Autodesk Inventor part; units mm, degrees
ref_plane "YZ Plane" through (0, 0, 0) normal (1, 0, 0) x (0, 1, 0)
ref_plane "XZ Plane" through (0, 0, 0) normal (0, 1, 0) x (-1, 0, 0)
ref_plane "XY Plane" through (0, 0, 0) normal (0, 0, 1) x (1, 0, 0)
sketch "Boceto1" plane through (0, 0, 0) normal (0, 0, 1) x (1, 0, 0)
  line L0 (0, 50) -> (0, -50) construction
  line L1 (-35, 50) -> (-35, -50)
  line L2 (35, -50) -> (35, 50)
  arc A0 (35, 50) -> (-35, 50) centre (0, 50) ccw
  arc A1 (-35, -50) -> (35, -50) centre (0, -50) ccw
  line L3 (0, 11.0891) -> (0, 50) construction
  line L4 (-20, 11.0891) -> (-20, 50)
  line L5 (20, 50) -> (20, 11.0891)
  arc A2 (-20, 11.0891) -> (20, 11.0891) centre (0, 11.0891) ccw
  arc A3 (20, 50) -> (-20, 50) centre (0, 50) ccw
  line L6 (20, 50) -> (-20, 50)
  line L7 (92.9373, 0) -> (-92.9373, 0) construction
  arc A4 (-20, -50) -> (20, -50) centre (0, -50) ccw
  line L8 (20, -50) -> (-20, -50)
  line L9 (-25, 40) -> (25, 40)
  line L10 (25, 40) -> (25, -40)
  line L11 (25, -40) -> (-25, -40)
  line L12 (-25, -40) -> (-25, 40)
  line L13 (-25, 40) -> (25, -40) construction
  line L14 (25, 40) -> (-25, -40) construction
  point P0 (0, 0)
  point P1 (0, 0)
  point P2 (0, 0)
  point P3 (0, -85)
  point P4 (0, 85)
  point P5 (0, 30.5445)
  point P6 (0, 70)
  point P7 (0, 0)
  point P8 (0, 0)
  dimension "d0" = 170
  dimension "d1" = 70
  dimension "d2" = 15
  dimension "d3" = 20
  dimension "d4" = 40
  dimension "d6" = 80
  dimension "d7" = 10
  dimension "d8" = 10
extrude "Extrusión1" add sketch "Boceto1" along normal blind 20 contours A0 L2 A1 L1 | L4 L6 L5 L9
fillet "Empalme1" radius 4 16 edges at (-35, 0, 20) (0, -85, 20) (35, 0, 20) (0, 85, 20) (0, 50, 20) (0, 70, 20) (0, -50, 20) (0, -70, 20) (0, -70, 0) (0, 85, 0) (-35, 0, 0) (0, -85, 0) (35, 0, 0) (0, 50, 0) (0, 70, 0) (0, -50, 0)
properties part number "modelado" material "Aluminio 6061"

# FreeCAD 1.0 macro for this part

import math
import FreeCAD as App
import Part
import Sketcher

V = App.Vector
Q = App.Units.Quantity


def edges_at(feature, points):
    """Names of the edges that pass closest to the given points."""
    edges = feature.Shape.Edges
    near = lambda p: min(range(len(edges)), key=lambda i: edges[i].distToShape(Part.Vertex(*p))[0])
    return sorted({f"Edge{near(p) + 1}" for p in points})


def add_polygon(sketch, points):
    """Adds a closed chain of lines whose ends are joined by coincident constraints."""
    first, n = sketch.GeometryCount, len(points)
    for a, b in zip(points, points[1:] + points[:1]):
        sketch.addGeometry(Part.LineSegment(App.Vector(*a, 0), App.Vector(*b, 0)), False)
    for i in range(n):
        sketch.addConstraint(Sketcher.Constraint("Coincident", first + i, 2, first + (i + 1) % n, 1))

doc = App.newDocument("Part")
body = doc.addObject("PartDesign::Body", "Body")

sketch1 = body.newObject("Sketcher::SketchObject", "Sketch")
sketch1.AttachmentSupport = (doc.getObject("XY_Plane"), [""])
sketch1.MapMode = "FlatFace"
sketch1.addGeometry(Part.ArcOfCircle(Part.Circle(V(0, 50, 0), V(0, 0, 1), 35), math.radians(0), math.radians(180)), False)
sketch1.addGeometry(Part.LineSegment(V(-35, 50, 0), V(-35, -50, 0)), False)
sketch1.addGeometry(Part.ArcOfCircle(Part.Circle(V(0, -50, 0), V(0, 0, 1), 35), math.radians(180), math.radians(360)), False)
sketch1.addGeometry(Part.LineSegment(V(35, -50, 0), V(35, 50, 0)), False)
sketch1.addGeometry(Part.ArcOfCircle(Part.Circle(V(0, -50, 0), V(0, 0, 1), 20), math.radians(180), math.radians(360)), False)
sketch1.addGeometry(Part.LineSegment(V(-20, -50, 0), V(20, -50, 0)), False)
add_polygon(sketch1, [(-25, 40), (25, 40), (25, -40), (-25, -40)])
sketch1.addGeometry(Part.ArcOfCircle(Part.Circle(V(0, 50, 0), V(0, 0, 1), 20), math.radians(0), math.radians(180)), False)
sketch1.addGeometry(Part.LineSegment(V(20, 50, 0), V(-20, 50, 0)), False)
sketch1.addConstraint([
    Sketcher.Constraint("Tangent", 0, 2, 1, 1),
    Sketcher.Constraint("Tangent", 1, 2, 2, 1),
    Sketcher.Constraint("Tangent", 2, 2, 3, 1),
    Sketcher.Constraint("Tangent", 3, 2, 0, 1),
    Sketcher.Constraint("Coincident", 4, 1, 5, 1),
    Sketcher.Constraint("Coincident", 5, 2, 4, 2),
    Sketcher.Constraint("Coincident", 10, 1, 11, 1),
    Sketcher.Constraint("Coincident", 11, 2, 10, 2),
    Sketcher.Constraint("Vertical", 1),
    Sketcher.Constraint("Vertical", 3),
    Sketcher.Constraint("Horizontal", 5),
    Sketcher.Constraint("Horizontal", 6),
    Sketcher.Constraint("Vertical", 7),
    Sketcher.Constraint("Horizontal", 8),
    Sketcher.Constraint("Vertical", 9),
    Sketcher.Constraint("Horizontal", 11),
    Sketcher.Constraint("Coincident", 4, 3, 2, 3),
    Sketcher.Constraint("Coincident", 10, 3, 0, 3),
    Sketcher.Constraint("Equal", 4, 10),
    Sketcher.Constraint("Symmetric", 0, 3, 2, 3, -1, 1),
    Sketcher.Constraint("Symmetric", 6, 2, 8, 2, -1, 1),
    Sketcher.Constraint("Horizontal", 2, 2, 4, 1),
    Sketcher.Constraint("Horizontal", 3, 2, 10, 1),
    Sketcher.Constraint("Radius", 0, Q("35 mm")),
    Sketcher.Constraint("Radius", 4, Q("20 mm")),
    Sketcher.Constraint("DistanceY", 7, 2, 7, 1, Q("80 mm")),
    Sketcher.Constraint("DistanceX", 6, 2, 3, 2, Q("10 mm")),
    Sketcher.Constraint("DistanceY", 6, 2, 3, 2, Q("10 mm")),
])
pad1 = body.newObject("PartDesign::Pad", "Pad")
pad1.Profile = sketch1
pad1.Length = 20
doc.recompute()

fillet = body.newObject("PartDesign::Fillet", "Fillet")
fillet.Base = (pad1, edges_at(pad1, [
    (-35, 0, 20),
    (0, -85, 20),
    (35, 0, 20),
    (0, 85, 20),
    (0, 50, 20),
    (0, 70, 20),
    (0, -50, 20),
    (0, -70, 20),
    (0, -70, 0),
    (0, 85, 0),
    (-35, 0, 0),
    (0, -85, 0),
    (35, 0, 0),
    (0, 50, 0),
    (0, 70, 0),
    (0, -50, 0),
]))
fillet.Radius = 4

doc.recompute()
